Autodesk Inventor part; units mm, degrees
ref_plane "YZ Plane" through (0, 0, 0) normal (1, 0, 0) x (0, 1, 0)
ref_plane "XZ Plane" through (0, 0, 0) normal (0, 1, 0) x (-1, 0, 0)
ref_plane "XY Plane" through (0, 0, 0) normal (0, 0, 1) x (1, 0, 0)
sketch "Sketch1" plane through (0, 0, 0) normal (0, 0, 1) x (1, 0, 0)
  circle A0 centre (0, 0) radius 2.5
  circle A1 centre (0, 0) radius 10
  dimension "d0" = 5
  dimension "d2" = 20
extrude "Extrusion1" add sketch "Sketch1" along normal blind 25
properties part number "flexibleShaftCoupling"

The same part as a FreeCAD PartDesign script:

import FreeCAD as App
import Part
import Sketcher
from FreeCAD import Vector

doc = App.newDocument("Part")
body = doc.addObject("PartDesign::Body", "Body")

sketch1 = body.newObject("Sketcher::SketchObject", "Sketch")
sketch1.AttachmentSupport = (doc.getObject("XY_Plane"), [""])
sketch1.MapMode = "FlatFace"
sketch1.addGeometry([
    Part.Circle(Vector(0, 0, 0), Vector(0, 0, 1), 10),
    Part.Circle(Vector(0, 0, 0), Vector(0, 0, 1), 2.5),
], False)
sketch1.addConstraint([
    Sketcher.Constraint("Coincident", 0, 3, -1, 1),
    Sketcher.Constraint("Coincident", 1, 3, -1, 1),
    Sketcher.Constraint("Diameter", 0, 20.0),
    Sketcher.Constraint("Diameter", 1, 5.0),
])
pad1 = body.newObject("PartDesign::Pad", "Pad")
pad1.Profile = sketch1
pad1.Length = 25

doc.recompute()
